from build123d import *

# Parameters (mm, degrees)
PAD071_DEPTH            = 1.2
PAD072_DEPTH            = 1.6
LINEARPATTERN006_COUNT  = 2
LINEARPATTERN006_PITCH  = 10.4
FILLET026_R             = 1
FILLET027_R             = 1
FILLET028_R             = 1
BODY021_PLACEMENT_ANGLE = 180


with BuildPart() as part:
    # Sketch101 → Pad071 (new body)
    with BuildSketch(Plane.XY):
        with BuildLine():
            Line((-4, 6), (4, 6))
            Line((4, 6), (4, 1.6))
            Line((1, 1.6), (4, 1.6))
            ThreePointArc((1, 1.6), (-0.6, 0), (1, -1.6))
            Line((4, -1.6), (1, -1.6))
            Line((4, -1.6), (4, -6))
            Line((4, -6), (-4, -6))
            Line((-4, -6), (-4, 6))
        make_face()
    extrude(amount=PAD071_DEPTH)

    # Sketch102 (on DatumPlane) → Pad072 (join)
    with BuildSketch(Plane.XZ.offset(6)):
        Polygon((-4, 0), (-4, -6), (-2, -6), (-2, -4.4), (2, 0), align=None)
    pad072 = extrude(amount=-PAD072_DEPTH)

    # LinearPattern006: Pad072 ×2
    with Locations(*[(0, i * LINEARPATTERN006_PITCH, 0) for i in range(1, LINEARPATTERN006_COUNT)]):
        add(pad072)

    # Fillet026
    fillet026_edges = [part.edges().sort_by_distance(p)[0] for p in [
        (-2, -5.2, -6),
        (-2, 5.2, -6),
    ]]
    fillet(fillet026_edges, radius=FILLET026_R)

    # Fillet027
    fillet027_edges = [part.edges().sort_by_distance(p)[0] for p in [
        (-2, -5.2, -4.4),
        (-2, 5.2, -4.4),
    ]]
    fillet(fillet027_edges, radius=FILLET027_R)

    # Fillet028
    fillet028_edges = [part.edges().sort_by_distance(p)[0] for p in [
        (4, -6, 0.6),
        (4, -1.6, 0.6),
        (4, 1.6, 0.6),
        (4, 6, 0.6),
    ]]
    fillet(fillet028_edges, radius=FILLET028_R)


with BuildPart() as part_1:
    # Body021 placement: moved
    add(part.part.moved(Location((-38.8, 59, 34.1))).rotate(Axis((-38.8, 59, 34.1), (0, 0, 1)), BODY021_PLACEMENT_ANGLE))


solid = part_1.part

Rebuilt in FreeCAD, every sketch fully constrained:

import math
import FreeCAD as App
import Part
import Sketcher


def edges_at(feature, points):
    """Names of the edges that pass closest to the given points."""
    edges = feature.Shape.Edges
    near = lambda p: min(range(len(edges)), key=lambda i: edges[i].distToShape(Part.Vertex(*p))[0])
    return sorted({f"Edge{near(p) + 1}" for p in points})

doc = App.newDocument("Part")
body = doc.addObject("PartDesign::Body", "Body")

# Sketch on XY plane
sketch1 = body.newObject("Sketcher::SketchObject", "Sketch")
sketch1.AttachmentSupport = (doc.getObject("XY_Plane"), [""])
sketch1.MapMode = "FlatFace"
sketch1.addGeometry([
    Part.LineSegment(App.Vector(4, 6, 0), App.Vector(-4, 6, 0)),  # 0
    Part.LineSegment(App.Vector(-4, 6, 0), App.Vector(-4, -6, 0)),  # 1
    Part.LineSegment(App.Vector(-4, -6, 0), App.Vector(4, -6, 0)),  # 2
    Part.LineSegment(App.Vector(4, -6, 0), App.Vector(4, -1.6, 0)),  # 3
    Part.LineSegment(App.Vector(4, -1.6, 0), App.Vector(1, -1.6, 0)),  # 4
    Part.ArcOfCircle(Part.Circle(App.Vector(1, 0, 0), App.Vector(0, 0, 1), 1.6), math.radians(90), math.radians(270)),  # 5
    Part.LineSegment(App.Vector(1, 1.6, 0), App.Vector(4, 1.6, 0)),  # 6
    Part.LineSegment(App.Vector(4, 1.6, 0), App.Vector(4, 6, 0)),  # 7
], False)
sketch1.addConstraint([
    Sketcher.Constraint("Coincident", 0, 2, 1, 1),
    Sketcher.Constraint("Coincident", 1, 2, 2, 1),
    Sketcher.Constraint("Coincident", 2, 2, 3, 1),
    Sketcher.Constraint("Coincident", 3, 2, 4, 1),
    Sketcher.Constraint("Tangent", 4, 2, 5, 2),
    Sketcher.Constraint("Tangent", 5, 1, 6, 1),
    Sketcher.Constraint("Coincident", 6, 2, 7, 1),
    Sketcher.Constraint("Coincident", 7, 2, 0, 1),
    Sketcher.Constraint("Horizontal", 0),
    Sketcher.Constraint("Vertical", 1),
    Sketcher.Constraint("Horizontal", 2),
    Sketcher.Constraint("Vertical", 3),
    Sketcher.Constraint("Horizontal", 4),
    Sketcher.Constraint("Horizontal", 6),
    Sketcher.Constraint("Vertical", 7),
    Sketcher.Constraint("Symmetric", 0, 2, 2, 2, -1, 1),
    Sketcher.Constraint("Symmetric", 3, 2, 6, 2, -1),
    Sketcher.Constraint("Radius", 5, 1.6),
    Sketcher.Constraint("DistanceX", 0, 2, 0, 1, 8.0),
    Sketcher.Constraint("DistanceX", 4, 2, 4, 1, 3.0),
    Sketcher.Constraint("DistanceY", 1, 2, 1, 1, 12.0),
])
pad1 = body.newObject("PartDesign::Pad", "Pad")
pad1.Profile = sketch1
pad1.Length = 1.2

# Sketch on XZ plane
sketch2 = body.newObject("Sketcher::SketchObject", "Sketch001")
sketch2.AttachmentSupport = (doc.getObject("XZ_Plane"), [""])
sketch2.MapMode = "FlatFace"
sketch2.AttachmentOffset = App.Placement(App.Vector(0, 0, 6), App.Rotation())
sketch2.addGeometry([
    Part.LineSegment(App.Vector(-4, 0, 0), App.Vector(-4, -6, 0)),  # 0
    Part.LineSegment(App.Vector(-4, -6, 0), App.Vector(-2, -6, 0)),  # 1
    Part.LineSegment(App.Vector(-2, -6, 0), App.Vector(-2, -4.4, 0)),  # 2
    Part.LineSegment(App.Vector(-2, -4.4, 0), App.Vector(2, 0, 0)),  # 3
    Part.LineSegment(App.Vector(2, 0, 0), App.Vector(-4, 0, 0)),  # 4
], False)
sketch2.addConstraint([
    Sketcher.Constraint("Coincident", 0, 2, 1, 1),
    Sketcher.Constraint("Coincident", 1, 2, 2, 1),
    Sketcher.Constraint("Coincident", 2, 2, 3, 1),
    Sketcher.Constraint("Coincident", 3, 2, 4, 1),
    Sketcher.Constraint("Coincident", 4, 2, 0, 1),
    Sketcher.Constraint("Vertical", 0),
    Sketcher.Constraint("Horizontal", 1),
    Sketcher.Constraint("Vertical", 2),
    Sketcher.Constraint("Horizontal", 4),
    Sketcher.Constraint("PointOnObject", 3, 2, -1),
    Sketcher.Constraint("Equal", 4, 0),
    Sketcher.Constraint("DistanceX", 1, 1, 1, 2, 2.0),
    Sketcher.Constraint("DistanceX", 4, 2, 4, 1, 6.0),
    Sketcher.Constraint("DistanceY", 2, 1, 2, 2, 1.6),
    Sketcher.Constraint("DistanceX", 0, 2, -1, 1, 4.0),
])
pad2 = body.newObject("PartDesign::Pad", "Pad001")
pad2.Profile = sketch2
pad2.Length = 1.6
pad2.Reversed = True
doc.recompute()

linearpattern = body.newObject("PartDesign::LinearPattern", "LinearPattern")
linearpattern.Originals = [pad2]
linearpattern.Direction = (doc.getObject("Y_Axis"), [""])
linearpattern.Mode = "offset"
linearpattern.Offset = 10.4
linearpattern.Occurrences = 2
body.Tip = linearpattern
doc.recompute()

fillet = body.newObject("PartDesign::Fillet", "Fillet")
fillet.Base = (linearpattern, edges_at(linearpattern, [(-2, -5.2, -6), (-2, 5.2, -6)]))
fillet.Radius = 1
doc.recompute()

fillet2 = body.newObject("PartDesign::Fillet", "Fillet001")
fillet2.Base = (fillet, edges_at(fillet, [(-2, -5.2, -4.4), (-2, 5.2, -4.4)]))
fillet2.Radius = 1
doc.recompute()

fillet3 = body.newObject("PartDesign::Fillet", "Fillet002")
fillet3.Base = (fillet2, edges_at(fillet2, [
    (4, -6, 0.6),
    (4, -1.6, 0.6),
    (4, 1.6, 0.6),
    (4, 6, 0.6),
]))
fillet3.Radius = 1
body2 = doc.addObject("PartDesign::Body", "Body001")
doc.recompute()

body.Placement = App.Placement(App.Vector(-38.8, 59, 34.1), App.Rotation(App.Vector(0, 0, 1), 180))
boolean = body2.newObject("PartDesign::Boolean", "Boolean")
boolean.Type = "Fuse"
boolean.addObjects([body])

doc.recompute()
